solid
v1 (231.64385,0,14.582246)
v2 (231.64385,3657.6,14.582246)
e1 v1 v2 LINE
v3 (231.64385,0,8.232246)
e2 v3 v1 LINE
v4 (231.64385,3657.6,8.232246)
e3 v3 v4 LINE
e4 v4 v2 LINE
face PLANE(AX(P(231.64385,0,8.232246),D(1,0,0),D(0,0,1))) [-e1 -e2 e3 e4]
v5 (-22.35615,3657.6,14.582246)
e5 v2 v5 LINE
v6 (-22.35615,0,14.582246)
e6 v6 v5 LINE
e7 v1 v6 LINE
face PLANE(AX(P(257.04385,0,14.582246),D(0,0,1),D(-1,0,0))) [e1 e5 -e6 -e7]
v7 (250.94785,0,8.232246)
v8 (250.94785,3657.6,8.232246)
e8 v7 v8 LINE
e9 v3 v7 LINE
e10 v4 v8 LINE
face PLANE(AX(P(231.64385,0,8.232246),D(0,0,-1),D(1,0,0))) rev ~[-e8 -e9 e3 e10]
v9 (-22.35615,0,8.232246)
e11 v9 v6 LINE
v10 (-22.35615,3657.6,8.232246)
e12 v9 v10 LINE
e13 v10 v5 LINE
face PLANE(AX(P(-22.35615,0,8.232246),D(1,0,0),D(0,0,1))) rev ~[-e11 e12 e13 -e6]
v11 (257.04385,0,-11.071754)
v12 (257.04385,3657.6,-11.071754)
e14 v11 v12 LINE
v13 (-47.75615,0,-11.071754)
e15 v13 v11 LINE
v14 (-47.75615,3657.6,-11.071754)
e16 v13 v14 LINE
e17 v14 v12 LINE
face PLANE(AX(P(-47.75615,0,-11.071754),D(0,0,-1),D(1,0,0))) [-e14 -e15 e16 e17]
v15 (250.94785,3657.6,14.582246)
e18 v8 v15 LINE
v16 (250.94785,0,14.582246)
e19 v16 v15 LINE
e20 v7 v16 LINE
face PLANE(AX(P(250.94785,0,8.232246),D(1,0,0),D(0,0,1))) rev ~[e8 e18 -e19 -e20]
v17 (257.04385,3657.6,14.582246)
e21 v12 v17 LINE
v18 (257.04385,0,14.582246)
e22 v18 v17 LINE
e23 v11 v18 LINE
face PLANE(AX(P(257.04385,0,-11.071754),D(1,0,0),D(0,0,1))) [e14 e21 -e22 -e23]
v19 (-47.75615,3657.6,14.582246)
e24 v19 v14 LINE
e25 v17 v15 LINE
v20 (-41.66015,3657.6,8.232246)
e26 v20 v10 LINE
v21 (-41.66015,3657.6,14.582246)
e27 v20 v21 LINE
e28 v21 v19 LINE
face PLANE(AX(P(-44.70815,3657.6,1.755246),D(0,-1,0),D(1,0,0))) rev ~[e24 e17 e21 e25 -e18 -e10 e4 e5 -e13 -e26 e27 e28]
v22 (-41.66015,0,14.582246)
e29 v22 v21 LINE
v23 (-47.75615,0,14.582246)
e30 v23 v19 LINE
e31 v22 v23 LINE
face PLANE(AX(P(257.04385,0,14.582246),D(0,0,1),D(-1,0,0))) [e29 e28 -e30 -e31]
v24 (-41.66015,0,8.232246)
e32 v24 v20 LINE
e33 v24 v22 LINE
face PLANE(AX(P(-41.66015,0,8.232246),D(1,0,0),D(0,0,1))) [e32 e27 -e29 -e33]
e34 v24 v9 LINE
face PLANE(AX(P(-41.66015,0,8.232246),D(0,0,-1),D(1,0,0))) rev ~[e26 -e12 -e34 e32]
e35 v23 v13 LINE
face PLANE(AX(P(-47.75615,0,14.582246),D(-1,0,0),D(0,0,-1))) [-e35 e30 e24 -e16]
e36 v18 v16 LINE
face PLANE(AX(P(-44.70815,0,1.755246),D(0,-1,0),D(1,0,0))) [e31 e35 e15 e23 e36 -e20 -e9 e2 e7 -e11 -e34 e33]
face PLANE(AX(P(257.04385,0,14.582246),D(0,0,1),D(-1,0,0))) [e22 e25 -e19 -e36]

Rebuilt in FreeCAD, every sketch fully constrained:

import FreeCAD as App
import Part
import Sketcher
from FreeCAD import Vector
Q = App.Units.Quantity

doc = App.newDocument("Part")
body = doc.addObject("PartDesign::Body", "Body")

# Sketch on XZ plane
sketch1 = doc.addObject("Sketcher::SketchObject", "Sketch")
body.addObject(sketch1)
sketch1.AttachmentSupport = (doc.XZ_Plane, [""])
sketch1.MapMode = "FlatFace"
sketch1.addGeometry([
    Part.LineSegment(Vector(-47.75615, 14.582246, 0), Vector(-47.75615, -11.071754, 0)),
    Part.LineSegment(Vector(-47.75615, -11.071754, 0), Vector(257.04385, -11.071754, 0)),
    Part.LineSegment(Vector(257.04385, -11.071754, 0), Vector(257.04385, 14.582246, 0)),
    Part.LineSegment(Vector(257.04385, 14.582246, 0), Vector(-47.75615, 14.582246, 0)),
], False)
sketch1.addConstraint([
    Sketcher.Constraint("Coincident", 0, 2, 1, 1),
    Sketcher.Constraint("Coincident", 1, 2, 2, 1),
    Sketcher.Constraint("Coincident", 2, 2, 3, 1),
    Sketcher.Constraint("Coincident", 3, 2, 0, 1),
    Sketcher.Constraint("Vertical", 0),
    Sketcher.Constraint("Horizontal", 1),
    Sketcher.Constraint("Vertical", 2),
    Sketcher.Constraint("Horizontal", 3),
    Sketcher.Constraint("DistanceX", 1, 1, 1, 2, Q("12 in")),
    Sketcher.Constraint("DistanceY", 0, 2, 0, 1, Q("1.01 in")),
    Sketcher.Constraint("DistanceX", 0, 2, -1, 1, Q("47.75615 mm")),
    Sketcher.Constraint("DistanceY", 0, 2, -1, 1, Q("11.071754 mm")),
])
pad1 = doc.addObject("PartDesign::Pad", "Pad")
body.addObject(pad1)
pad1.Profile = sketch1
pad1.Length = Q("144 in")
pad1.Reversed = True

# Sketch on XZ plane
sketch2 = doc.addObject("Sketcher::SketchObject", "Sketch001")
body.addObject(sketch2)
sketch2.AttachmentSupport = (doc.XZ_Plane, [""])
sketch2.MapMode = "FlatFace"
sketch2.addGeometry([
    Part.LineSegment(Vector(-41.66015, 14.582246, 0), Vector(-41.66015, 8.232246, 0)),  # 0
    Part.LineSegment(Vector(-41.66015, 8.232246, 0), Vector(-22.35615, 8.232246, 0)),  # 1
    Part.LineSegment(Vector(-22.35615, 8.232246, 0), Vector(-22.35615, 14.582246, 0)),  # 2
    Part.LineSegment(Vector(-22.35615, 14.582246, 0), Vector(-41.66015, 14.582246, 0)),  # 3
    Part.LineSegment(Vector(231.64385, 14.582246, 0), Vector(231.64385, 8.232246, 0)),  # 4
    Part.LineSegment(Vector(231.64385, 8.232246, 0), Vector(250.94785, 8.232246, 0)),  # 5
    Part.LineSegment(Vector(250.94785, 8.232246, 0), Vector(250.94785, 14.582246, 0)),  # 6
    Part.LineSegment(Vector(250.94785, 14.582246, 0), Vector(231.64385, 14.582246, 0)),  # 7
], False)
sketch2.addConstraint([
    Sketcher.Constraint("Coincident", 0, 2, 1, 1),
    Sketcher.Constraint("Coincident", 1, 2, 2, 1),
    Sketcher.Constraint("Coincident", 2, 2, 3, 1),
    Sketcher.Constraint("Coincident", 3, 2, 0, 1),
    Sketcher.Constraint("Coincident", 4, 2, 5, 1),
    Sketcher.Constraint("Coincident", 5, 2, 6, 1),
    Sketcher.Constraint("Coincident", 6, 2, 7, 1),
    Sketcher.Constraint("Coincident", 7, 2, 4, 1),
    Sketcher.Constraint("Vertical", 0),
    Sketcher.Constraint("Horizontal", 1),
    Sketcher.Constraint("Vertical", 2),
    Sketcher.Constraint("Horizontal", 3),
    Sketcher.Constraint("Vertical", 4),
    Sketcher.Constraint("Horizontal", 5),
    Sketcher.Constraint("Vertical", 6),
    Sketcher.Constraint("Horizontal", 7),
    Sketcher.Constraint("Horizontal", 1, 2, 4, 2),
    Sketcher.Constraint("Horizontal", 3, 2, 6, 2),
    Sketcher.Constraint("Equal", 3, 5),
    Sketcher.Constraint("DistanceX", 1, 2, 4, 2, Q("10 in")),
    Sketcher.Constraint("DistanceX", 1, 1, 1, 2, Q("0.76 in")),
    Sketcher.Constraint("DistanceY", 0, 2, 0, 1, Q("0.25 in")),
    Sketcher.Constraint("DistanceX", 0, 2, -1, 1, Q("41.66015 mm")),
    Sketcher.Constraint("DistanceY", -1, 1, 0, 2, Q("8.232246 mm")),
])
pocket1 = doc.addObject("PartDesign::Pocket", "Pocket")
body.addObject(pocket1)
pocket1.Profile = sketch2
pocket1.Type = "ThroughAll"

doc.recompute()
